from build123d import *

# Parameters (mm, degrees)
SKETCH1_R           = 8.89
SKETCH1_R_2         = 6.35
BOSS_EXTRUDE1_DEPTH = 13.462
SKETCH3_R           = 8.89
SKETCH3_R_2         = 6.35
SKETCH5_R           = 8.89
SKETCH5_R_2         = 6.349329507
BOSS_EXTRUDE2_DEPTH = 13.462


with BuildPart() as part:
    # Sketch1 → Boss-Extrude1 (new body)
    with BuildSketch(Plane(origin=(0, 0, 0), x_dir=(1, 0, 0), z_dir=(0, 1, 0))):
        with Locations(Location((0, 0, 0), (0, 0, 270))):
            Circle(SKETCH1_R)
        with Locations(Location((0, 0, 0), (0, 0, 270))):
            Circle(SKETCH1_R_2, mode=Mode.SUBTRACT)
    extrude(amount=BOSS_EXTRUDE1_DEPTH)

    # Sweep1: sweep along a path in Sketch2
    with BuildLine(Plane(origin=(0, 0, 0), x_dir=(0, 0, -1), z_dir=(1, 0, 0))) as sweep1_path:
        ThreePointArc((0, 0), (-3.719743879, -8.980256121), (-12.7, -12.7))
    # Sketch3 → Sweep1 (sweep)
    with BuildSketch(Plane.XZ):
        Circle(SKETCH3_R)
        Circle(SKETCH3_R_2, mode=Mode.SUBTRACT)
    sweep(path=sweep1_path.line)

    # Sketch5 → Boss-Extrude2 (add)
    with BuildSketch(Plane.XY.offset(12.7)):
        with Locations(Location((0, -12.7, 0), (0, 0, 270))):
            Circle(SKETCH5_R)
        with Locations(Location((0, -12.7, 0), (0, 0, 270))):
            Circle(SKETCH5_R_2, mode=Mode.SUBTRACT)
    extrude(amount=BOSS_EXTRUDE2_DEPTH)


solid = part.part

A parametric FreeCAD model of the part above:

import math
import FreeCAD as App
import Part
import Sketcher
from FreeCAD import Vector
Q = App.Units.Quantity

doc = App.newDocument("Part")
params = doc.addObject("Spreadsheet::Sheet", "Params")
for row, (alias, value) in enumerate([
    ("sketch1_diameter", "0.7 in"),
    ("sketch1_diameter2", "0.5 in"),
    ("pad1_length", "0.53 in"),
    ("sketch2_diameter", "0.7 in"),
    ("sketch2_diameter2", "0.5 in"),
    ("sketch3_radius", "0.5 in"),
    ("sketch4_diameter", "0.7 in"),
    ("pad2_length", "0.53 in"),
], start=1):
    params.set(f"A{row}", alias)
    params.set(f"B{row}", "=" + value)
    params.setAlias(f"B{row}", alias)

body = doc.addObject("PartDesign::Body", "Body")

# Sketch on XZ plane
sketch1 = doc.addObject("Sketcher::SketchObject", "Sketch")
body.addObject(sketch1)
sketch1.AttachmentSupport = (doc.XZ_Plane, [""])
sketch1.MapMode = "FlatFace"
sketch1.addGeometry([
    Part.Circle(Vector(0, 0, 0), Vector(0, 0, 1), 8.89),
    Part.Circle(Vector(0, 0, 0), Vector(0, 0, 1), 6.35),
], False)
sketch1.addConstraint([
    Sketcher.Constraint("Coincident", 0, 3, -1, 1),
    Sketcher.Constraint("Coincident", 1, 3, -1, 1),
    Sketcher.Constraint("Diameter", 0, Q("0.7 in")),
    Sketcher.Constraint("Diameter", 1, Q("0.5 in")),
])
sketch1.setExpression("Constraints[2]", "Params.sketch1_diameter")
sketch1.setExpression("Constraints[3]", "Params.sketch1_diameter2")
pad1 = doc.addObject("PartDesign::Pad", "Pad")
body.addObject(pad1)
pad1.Profile = sketch1
pad1.setExpression("Length", "Params.pad1_length")
pad1.Reversed = True

# Sketch on XZ plane
sketch2 = doc.addObject("Sketcher::SketchObject", "Sketch001")
body.addObject(sketch2)
sketch2.AttachmentSupport = (doc.XZ_Plane, [""])
sketch2.MapMode = "FlatFace"
sketch2.addGeometry([
    Part.Circle(Vector(0, 0, 0), Vector(0, 0, 1), 8.89),
    Part.Circle(Vector(0, 0, 0), Vector(0, 0, 1), 6.35),
], False)
sketch2.addConstraint([
    Sketcher.Constraint("Coincident", 0, 3, -1, 1),
    Sketcher.Constraint("Coincident", 1, 3, -1, 1),
    Sketcher.Constraint("Diameter", 0, Q("0.7 in")),
    Sketcher.Constraint("Diameter", 1, Q("0.5 in")),
])
sketch2.setExpression("Constraints[2]", "Params.sketch2_diameter")
sketch2.setExpression("Constraints[3]", "Params.sketch2_diameter2")

# Sketch on YZ plane
sketch3 = doc.addObject("Sketcher::SketchObject", "Sketch002")
body.addObject(sketch3)
sketch3.AttachmentSupport = (doc.YZ_Plane, [""])
sketch3.MapMode = "FlatFace"
sketch3.addGeometry(Part.ArcOfCircle(Part.Circle(Vector(0, 12.7, 0), Vector(0, 0, 1), 12.7), math.radians(180), math.radians(270)), False)
sketch3.addConstraint([
    Sketcher.Constraint("Coincident", 0, 2, -1, 1),
    Sketcher.Constraint("PointOnObject", 0, 3, -2),
    Sketcher.Constraint("Radius", 0, Q("0.5 in")),
    Sketcher.Constraint("DistanceY", -1, 1, 0, 1, Q("0.5 in")),
])
sketch3.setExpression("Constraints[2]", "Params.sketch3_radius")
doc.recompute()

additivepipe = doc.addObject("PartDesign::AdditivePipe", "AdditivePipe")
body.addObject(additivepipe)
additivepipe.Profile = sketch2
additivepipe.Spine = (sketch3, ["Edge1"])

# Sketch on XY plane
sketch4 = doc.addObject("Sketcher::SketchObject", "Sketch003")
body.addObject(sketch4)
sketch4.AttachmentSupport = (doc.XY_Plane, [""])
sketch4.MapMode = "FlatFace"
sketch4.AttachmentOffset = App.Placement(Vector(0, 0, 0.5 * 25.4), App.Rotation())
sketch4.addGeometry([
    Part.Circle(Vector(0, -12.7, 0), Vector(0, 0, 1), 8.89),
    Part.Circle(Vector(0, -12.7, 0), Vector(0, 0, 1), 6.34933),
], False)
sketch4.addConstraint([
    Sketcher.Constraint("Coincident", 1, 3, 0, 3),
    Sketcher.Constraint("PointOnObject", 0, 3, -2),
    Sketcher.Constraint("Diameter", 0, Q("0.7 in")),
    Sketcher.Constraint("DistanceY", 0, 3, -1, 1, Q("0.5 in")),
    Sketcher.Constraint("Diameter", 1, 12.698659),
])
sketch4.setExpression("Constraints[2]", "Params.sketch4_diameter")
pad2 = doc.addObject("PartDesign::Pad", "Pad001")
body.addObject(pad2)
pad2.Profile = sketch4
pad2.setExpression("Length", "Params.pad2_length")

doc.recompute()
